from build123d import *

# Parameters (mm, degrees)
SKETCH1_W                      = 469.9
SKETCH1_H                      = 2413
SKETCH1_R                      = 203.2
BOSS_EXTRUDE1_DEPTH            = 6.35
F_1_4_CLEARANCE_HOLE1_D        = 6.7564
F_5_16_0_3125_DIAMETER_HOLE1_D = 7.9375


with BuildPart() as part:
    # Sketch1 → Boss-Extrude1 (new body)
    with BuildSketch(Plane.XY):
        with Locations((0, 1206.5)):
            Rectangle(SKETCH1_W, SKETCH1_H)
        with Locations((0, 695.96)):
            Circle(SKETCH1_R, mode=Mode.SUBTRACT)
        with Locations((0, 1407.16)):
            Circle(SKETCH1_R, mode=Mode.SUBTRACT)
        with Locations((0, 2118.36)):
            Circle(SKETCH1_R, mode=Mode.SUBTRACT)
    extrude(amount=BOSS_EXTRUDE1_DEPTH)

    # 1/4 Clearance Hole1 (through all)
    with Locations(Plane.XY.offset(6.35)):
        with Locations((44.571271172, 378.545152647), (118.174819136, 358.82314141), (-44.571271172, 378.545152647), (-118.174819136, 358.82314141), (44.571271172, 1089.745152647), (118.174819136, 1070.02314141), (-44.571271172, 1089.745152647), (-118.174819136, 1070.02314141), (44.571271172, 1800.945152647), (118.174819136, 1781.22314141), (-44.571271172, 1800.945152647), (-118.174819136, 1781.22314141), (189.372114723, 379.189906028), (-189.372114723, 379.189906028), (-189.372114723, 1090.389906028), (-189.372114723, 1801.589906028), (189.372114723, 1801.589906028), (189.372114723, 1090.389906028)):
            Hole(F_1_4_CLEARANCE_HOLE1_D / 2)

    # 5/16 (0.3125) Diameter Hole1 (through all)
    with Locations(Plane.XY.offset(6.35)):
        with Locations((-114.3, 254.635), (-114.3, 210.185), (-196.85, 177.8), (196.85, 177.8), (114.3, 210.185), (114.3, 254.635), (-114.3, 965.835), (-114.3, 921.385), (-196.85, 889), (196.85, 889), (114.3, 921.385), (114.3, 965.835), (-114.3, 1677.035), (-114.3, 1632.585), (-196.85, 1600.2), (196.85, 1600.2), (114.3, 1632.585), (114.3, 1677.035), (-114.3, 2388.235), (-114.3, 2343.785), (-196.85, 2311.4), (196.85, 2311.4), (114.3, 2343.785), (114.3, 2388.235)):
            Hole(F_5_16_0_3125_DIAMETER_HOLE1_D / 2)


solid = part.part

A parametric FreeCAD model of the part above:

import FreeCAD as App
import Part
import Sketcher
from FreeCAD import Vector
Q = App.Units.Quantity

doc = App.newDocument("Part")
body = doc.addObject("PartDesign::Body", "Body")

sketch1 = body.newObject("Sketcher::SketchObject", "Sketch")
sketch1.AttachmentSupport = (doc.getObject("XY_Plane"), [""])
sketch1.MapMode = "FlatFace"
sketch1.addGeometry([
    Part.LineSegment(Vector(-234.95, 2413, 0), Vector(-234.95, 0, 0)),
    Part.LineSegment(Vector(-234.95, 0, 0), Vector(234.95, 0, 0)),
    Part.LineSegment(Vector(234.95, 0, 0), Vector(234.95, 2413, 0)),
    Part.LineSegment(Vector(234.95, 2413, 0), Vector(-234.95, 2413, 0)),
    Part.Circle(Vector(0, 695.96, 0), Vector(0, 0, 1), 203.2),
    Part.Circle(Vector(0, 1407.16, 0), Vector(0, 0, 1), 203.2),
    Part.Circle(Vector(0, 2118.36, 0), Vector(0, 0, 1), 203.2),
], False)
sketch1.addConstraint([
    Sketcher.Constraint("Coincident", 0, 2, 1, 1),
    Sketcher.Constraint("Coincident", 1, 2, 2, 1),
    Sketcher.Constraint("Coincident", 2, 2, 3, 1),
    Sketcher.Constraint("Coincident", 3, 2, 0, 1),
    Sketcher.Constraint("Vertical", 0),
    Sketcher.Constraint("Horizontal", 1),
    Sketcher.Constraint("Vertical", 2),
    Sketcher.Constraint("Horizontal", 3),
    Sketcher.Constraint("Equal", 4, 5),
    Sketcher.Constraint("Equal", 5, 6),
    Sketcher.Constraint("Symmetric", 0, 2, 1, 2, -1, 1),
    Sketcher.Constraint("PointOnObject", 4, 3, -2),
    Sketcher.Constraint("PointOnObject", 5, 3, -2),
    Sketcher.Constraint("PointOnObject", 6, 3, -2),
    Sketcher.Constraint("Diameter", 4, Q("16 in")),
    Sketcher.Constraint("DistanceY", 0, 2, 0, 1, Q("95 in")),
    Sketcher.Constraint("DistanceX", 1, 1, 1, 2, Q("18.5 in")),
    Sketcher.Constraint("DistanceY", 4, 3, 5, 3, Q("28 in")),
    Sketcher.Constraint("DistanceY", 5, 3, 6, 3, Q("28 in")),
    Sketcher.Constraint("DistanceY", -1, 1, 4, 3, Q("27.4 in")),
])
pad1 = body.newObject("PartDesign::Pad", "Pad")
pad1.Profile = sketch1
pad1.Length = Q("0.25 in")

sketch2 = body.newObject("Sketcher::SketchObject", "Sketch001")
sketch2.AttachmentSupport = (doc.getObject("XY_Plane"), [""])
sketch2.MapMode = "FlatFace"
sketch2.AttachmentOffset = App.Placement(Vector(0, 0, 0.25 * 25.4), App.Rotation())
sketch2.addGeometry([
    Part.Circle(Vector(44.571271, 378.545153, 0), Vector(0, 0, 1), 3.3782),
    Part.Circle(Vector(118.174819, 358.823141, 0), Vector(0, 0, 1), 3.3782),
    Part.Circle(Vector(-44.571271, 378.545153, 0), Vector(0, 0, 1), 3.3782),
    Part.Circle(Vector(-118.174819, 358.823141, 0), Vector(0, 0, 1), 3.3782),
    Part.Circle(Vector(44.571271, 1089.745153, 0), Vector(0, 0, 1), 3.3782),
    Part.Circle(Vector(118.174819, 1070.023141, 0), Vector(0, 0, 1), 3.3782),
    Part.Circle(Vector(-44.571271, 1089.745153, 0), Vector(0, 0, 1), 3.3782),
    Part.Circle(Vector(-118.174819, 1070.023141, 0), Vector(0, 0, 1), 3.3782),
    Part.Circle(Vector(44.571271, 1800.945153, 0), Vector(0, 0, 1), 3.3782),
    Part.Circle(Vector(118.174819, 1781.223141, 0), Vector(0, 0, 1), 3.3782),
    Part.Circle(Vector(-44.571271, 1800.945153, 0), Vector(0, 0, 1), 3.3782),
    Part.Circle(Vector(-118.174819, 1781.223141, 0), Vector(0, 0, 1), 3.3782),
    Part.Circle(Vector(189.372115, 379.189906, 0), Vector(0, 0, 1), 3.3782),
    Part.Circle(Vector(-189.372115, 379.189906, 0), Vector(0, 0, 1), 3.3782),
    Part.Circle(Vector(-189.372115, 1090.389906, 0), Vector(0, 0, 1), 3.3782),
    Part.Circle(Vector(-189.372115, 1801.589906, 0), Vector(0, 0, 1), 3.3782),
    Part.Circle(Vector(189.372115, 1801.589906, 0), Vector(0, 0, 1), 3.3782),
    Part.Circle(Vector(189.372115, 1090.389906, 0), Vector(0, 0, 1), 3.3782),
], False)
sketch2.addConstraint([
    Sketcher.Constraint("Equal", 0, 1),
    Sketcher.Constraint("Equal", 1, 2),
    Sketcher.Constraint("Equal", 2, 3),
    Sketcher.Constraint("Equal", 3, 4),
    Sketcher.Constraint("Equal", 4, 5),
    Sketcher.Constraint("Equal", 5, 6),
    Sketcher.Constraint("Equal", 6, 7),
    Sketcher.Constraint("Equal", 7, 8),
    Sketcher.Constraint("Equal", 8, 9),
    Sketcher.Constraint("Equal", 9, 10),
    Sketcher.Constraint("Equal", 10, 11),
    Sketcher.Constraint("Equal", 11, 12),
    Sketcher.Constraint("Equal", 12, 13),
    Sketcher.Constraint("Equal", 13, 14),
    Sketcher.Constraint("Equal", 14, 15),
    Sketcher.Constraint("Equal", 15, 16),
    Sketcher.Constraint("Equal", 16, 17),
    Sketcher.Constraint("Symmetric", 0, 3, 2, 3, -2),
    Sketcher.Constraint("Symmetric", 1, 3, 3, 3, -2),
    Sketcher.Constraint("Symmetric", 4, 3, 6, 3, -2),
    Sketcher.Constraint("Symmetric", 5, 3, 7, 3, -2),
    Sketcher.Constraint("Symmetric", 8, 3, 10, 3, -2),
    Sketcher.Constraint("Symmetric", 9, 3, 11, 3, -2),
    Sketcher.Constraint("Symmetric", 12, 3, 13, 3, -2),
    Sketcher.Constraint("Symmetric", 15, 3, 16, 3, -2),
    Sketcher.Constraint("Symmetric", 14, 3, 17, 3, -2),
    Sketcher.Constraint("Vertical", 0, 3, 4, 3),
    Sketcher.Constraint("Vertical", 1, 3, 5, 3),
    Sketcher.Constraint("Vertical", 4, 3, 8, 3),
    Sketcher.Constraint("Vertical", 5, 3, 9, 3),
    Sketcher.Constraint("Vertical", 13, 3, 14, 3),
    Sketcher.Constraint("Vertical", 14, 3, 15, 3),
    Sketcher.Constraint("Diameter", 0, Q("0.266 in")),
    Sketcher.Constraint("DistanceY", 0, 3, 4, 3, Q("28 in")),
    Sketcher.Constraint("DistanceY", 1, 3, 5, 3, Q("28 in")),
    Sketcher.Constraint("DistanceY", 4, 3, 8, 3, Q("28 in")),
    Sketcher.Constraint("DistanceY", 5, 3, 9, 3, Q("28 in")),
    Sketcher.Constraint("DistanceY", 14, 3, 15, 3, Q("28 in")),
    Sketcher.Constraint("DistanceX", -1, 1, 0, 3, 44.571271),
    Sketcher.Constraint("DistanceX", -1, 1, 1, 3, 118.174819),
    Sketcher.Constraint("DistanceY", -1, 1, 1, 3, 358.823141),
    Sketcher.Constraint("DistanceY", 1, 3, 0, 3, 19.722011),
    Sketcher.Constraint("DistanceX", 13, 3, 12, 3, 378.744229),
    Sketcher.Constraint("DistanceY", -1, 1, 12, 3, 379.189906),
    Sketcher.Constraint("DistanceY", -1, 1, 14, 3, 1090.389906),
])
doc.recompute()
hole = body.newObject("PartDesign::Hole", "Hole")
hole.Profile = sketch2
hole.ThreadType = "None"
hole.Diameter = Q("0.266 in")
hole.DepthType = "ThroughAll"

sketch3 = body.newObject("Sketcher::SketchObject", "Sketch002")
sketch3.AttachmentSupport = (doc.getObject("XY_Plane"), [""])
sketch3.MapMode = "FlatFace"
sketch3.AttachmentOffset = App.Placement(Vector(0, 0, 0.25 * 25.4), App.Rotation())
sketch3.addGeometry([
    Part.Circle(Vector(-114.3, 254.635, 0), Vector(0, 0, 1), 3.96875),
    Part.Circle(Vector(-114.3, 210.185, 0), Vector(0, 0, 1), 3.96875),
    Part.Circle(Vector(-196.85, 177.8, 0), Vector(0, 0, 1), 3.96875),
    Part.Circle(Vector(196.85, 177.8, 0), Vector(0, 0, 1), 3.96875),
    Part.Circle(Vector(114.3, 210.185, 0), Vector(0, 0, 1), 3.96875),
    Part.Circle(Vector(114.3, 254.635, 0), Vector(0, 0, 1), 3.96875),
    Part.Circle(Vector(-114.3, 965.835, 0), Vector(0, 0, 1), 3.96875),
    Part.Circle(Vector(-114.3, 921.385, 0), Vector(0, 0, 1), 3.96875),
    Part.Circle(Vector(-196.85, 889, 0), Vector(0, 0, 1), 3.96875),
    Part.Circle(Vector(196.85, 889, 0), Vector(0, 0, 1), 3.96875),
    Part.Circle(Vector(114.3, 921.385, 0), Vector(0, 0, 1), 3.96875),
    Part.Circle(Vector(114.3, 965.835, 0), Vector(0, 0, 1), 3.96875),
    Part.Circle(Vector(-114.3, 1677.035, 0), Vector(0, 0, 1), 3.96875),
    Part.Circle(Vector(-114.3, 1632.585, 0), Vector(0, 0, 1), 3.96875),
    Part.Circle(Vector(-196.85, 1600.2, 0), Vector(0, 0, 1), 3.96875),
    Part.Circle(Vector(196.85, 1600.2, 0), Vector(0, 0, 1), 3.96875),
    Part.Circle(Vector(114.3, 1632.585, 0), Vector(0, 0, 1), 3.96875),
    Part.Circle(Vector(114.3, 1677.035, 0), Vector(0, 0, 1), 3.96875),
    Part.Circle(Vector(-114.3, 2388.235, 0), Vector(0, 0, 1), 3.96875),
    Part.Circle(Vector(-114.3, 2343.785, 0), Vector(0, 0, 1), 3.96875),
    Part.Circle(Vector(-196.85, 2311.4, 0), Vector(0, 0, 1), 3.96875),
    Part.Circle(Vector(196.85, 2311.4, 0), Vector(0, 0, 1), 3.96875),
    Part.Circle(Vector(114.3, 2343.785, 0), Vector(0, 0, 1), 3.96875),
    Part.Circle(Vector(114.3, 2388.235, 0), Vector(0, 0, 1), 3.96875),
], False)
sketch3.addConstraint([
    Sketcher.Constraint("Equal", 0, 1),
    Sketcher.Constraint("Equal", 1, 2),
    Sketcher.Constraint("Equal", 2, 3),
    Sketcher.Constraint("Equal", 3, 4),
    Sketcher.Constraint("Equal", 4, 5),
    Sketcher.Constraint("Equal", 5, 6),
    Sketcher.Constraint("Equal", 6, 7),
    Sketcher.Constraint("Equal", 7, 8),
    Sketcher.Constraint("Equal", 8, 9),
    Sketcher.Constraint("Equal", 9, 10),
    Sketcher.Constraint("Equal", 10, 11),
    Sketcher.Constraint("Equal", 11, 12),
    Sketcher.Constraint("Equal", 12, 13),
    Sketcher.Constraint("Equal", 13, 14),
    Sketcher.Constraint("Equal", 14, 15),
    Sketcher.Constraint("Equal", 15, 16),
    Sketcher.Constraint("Equal", 16, 17),
    Sketcher.Constraint("Equal", 17, 18),
    Sketcher.Constraint("Equal", 18, 19),
    Sketcher.Constraint("Equal", 19, 20),
    Sketcher.Constraint("Equal", 20, 21),
    Sketcher.Constraint("Equal", 21, 22),
    Sketcher.Constraint("Equal", 22, 23),
    Sketcher.Constraint("Symmetric", 2, 3, 3, 3, -2),
    Sketcher.Constraint("Symmetric", 1, 3, 4, 3, -2),
    Sketcher.Constraint("Symmetric", 0, 3, 5, 3, -2),
    Sketcher.Constraint("Symmetric", 8, 3, 9, 3, -2),
    Sketcher.Constraint("Symmetric", 7, 3, 10, 3, -2),
    Sketcher.Constraint("Symmetric", 6, 3, 11, 3, -2),
    Sketcher.Constraint("Symmetric", 14, 3, 15, 3, -2),
    Sketcher.Constraint("Symmetric", 13, 3, 16, 3, -2),
    Sketcher.Constraint("Symmetric", 12, 3, 17, 3, -2),
    Sketcher.Constraint("Symmetric", 20, 3, 21, 3, -2),
    Sketcher.Constraint("Symmetric", 19, 3, 22, 3, -2),
    Sketcher.Constraint("Symmetric", 18, 3, 23, 3, -2),
    Sketcher.Constraint("Vertical", 0, 3, 1, 3),
    Sketcher.Constraint("Vertical", 1, 3, 6, 3),
    Sketcher.Constraint("Vertical", 6, 3, 7, 3),
    Sketcher.Constraint("Vertical", 2, 3, 8, 3),
    Sketcher.Constraint("Vertical", 7, 3, 12, 3),
    Sketcher.Constraint("Vertical", 12, 3, 13, 3),
    Sketcher.Constraint("Vertical", 8, 3, 14, 3),
    Sketcher.Constraint("Vertical", 13, 3, 18, 3),
    Sketcher.Constraint("Vertical", 18, 3, 19, 3),
    Sketcher.Constraint("Vertical", 14, 3, 20, 3),
    Sketcher.Constraint("Diameter", 0, Q("0.3125 in")),
    Sketcher.Constraint("DistanceY", -1, 1, 2, 3, Q("7 in")),
    Sketcher.Constraint("DistanceY", -1, 1, 8, 3, Q("35 in")),
    Sketcher.Constraint("DistanceY", -1, 1, 14, 3, Q("63 in")),
    Sketcher.Constraint("DistanceY", -1, 1, 20, 3, Q("91 in")),
    Sketcher.Constraint("DistanceX", 1, 3, 4, 3, Q("9 in")),
    Sketcher.Constraint("DistanceY", 0, 3, 6, 3, Q("28 in")),
    Sketcher.Constraint("DistanceY", 1, 3, 7, 3, Q("28 in")),
    Sketcher.Constraint("DistanceY", 6, 3, 12, 3, Q("28 in")),
    Sketcher.Constraint("DistanceY", 7, 3, 13, 3, Q("28 in")),
    Sketcher.Constraint("DistanceY", 12, 3, 18, 3, Q("28 in")),
    Sketcher.Constraint("DistanceY", 13, 3, 19, 3, Q("28 in")),
    Sketcher.Constraint("DistanceX", 2, 3, 3, 3, Q("15.5 in")),
    Sketcher.Constraint("DistanceY", 1, 3, 0, 3, Q("1.75 in")),
    Sketcher.Constraint("DistanceY", -1, 1, 0, 3, Q("10.025 in")),
])
doc.recompute()
hole2 = body.newObject("PartDesign::Hole", "Hole001")
hole2.Profile = sketch3
hole2.ThreadType = "None"
hole2.Diameter = Q("0.3125 in")
hole2.DepthType = "ThroughAll"

doc.recompute()
